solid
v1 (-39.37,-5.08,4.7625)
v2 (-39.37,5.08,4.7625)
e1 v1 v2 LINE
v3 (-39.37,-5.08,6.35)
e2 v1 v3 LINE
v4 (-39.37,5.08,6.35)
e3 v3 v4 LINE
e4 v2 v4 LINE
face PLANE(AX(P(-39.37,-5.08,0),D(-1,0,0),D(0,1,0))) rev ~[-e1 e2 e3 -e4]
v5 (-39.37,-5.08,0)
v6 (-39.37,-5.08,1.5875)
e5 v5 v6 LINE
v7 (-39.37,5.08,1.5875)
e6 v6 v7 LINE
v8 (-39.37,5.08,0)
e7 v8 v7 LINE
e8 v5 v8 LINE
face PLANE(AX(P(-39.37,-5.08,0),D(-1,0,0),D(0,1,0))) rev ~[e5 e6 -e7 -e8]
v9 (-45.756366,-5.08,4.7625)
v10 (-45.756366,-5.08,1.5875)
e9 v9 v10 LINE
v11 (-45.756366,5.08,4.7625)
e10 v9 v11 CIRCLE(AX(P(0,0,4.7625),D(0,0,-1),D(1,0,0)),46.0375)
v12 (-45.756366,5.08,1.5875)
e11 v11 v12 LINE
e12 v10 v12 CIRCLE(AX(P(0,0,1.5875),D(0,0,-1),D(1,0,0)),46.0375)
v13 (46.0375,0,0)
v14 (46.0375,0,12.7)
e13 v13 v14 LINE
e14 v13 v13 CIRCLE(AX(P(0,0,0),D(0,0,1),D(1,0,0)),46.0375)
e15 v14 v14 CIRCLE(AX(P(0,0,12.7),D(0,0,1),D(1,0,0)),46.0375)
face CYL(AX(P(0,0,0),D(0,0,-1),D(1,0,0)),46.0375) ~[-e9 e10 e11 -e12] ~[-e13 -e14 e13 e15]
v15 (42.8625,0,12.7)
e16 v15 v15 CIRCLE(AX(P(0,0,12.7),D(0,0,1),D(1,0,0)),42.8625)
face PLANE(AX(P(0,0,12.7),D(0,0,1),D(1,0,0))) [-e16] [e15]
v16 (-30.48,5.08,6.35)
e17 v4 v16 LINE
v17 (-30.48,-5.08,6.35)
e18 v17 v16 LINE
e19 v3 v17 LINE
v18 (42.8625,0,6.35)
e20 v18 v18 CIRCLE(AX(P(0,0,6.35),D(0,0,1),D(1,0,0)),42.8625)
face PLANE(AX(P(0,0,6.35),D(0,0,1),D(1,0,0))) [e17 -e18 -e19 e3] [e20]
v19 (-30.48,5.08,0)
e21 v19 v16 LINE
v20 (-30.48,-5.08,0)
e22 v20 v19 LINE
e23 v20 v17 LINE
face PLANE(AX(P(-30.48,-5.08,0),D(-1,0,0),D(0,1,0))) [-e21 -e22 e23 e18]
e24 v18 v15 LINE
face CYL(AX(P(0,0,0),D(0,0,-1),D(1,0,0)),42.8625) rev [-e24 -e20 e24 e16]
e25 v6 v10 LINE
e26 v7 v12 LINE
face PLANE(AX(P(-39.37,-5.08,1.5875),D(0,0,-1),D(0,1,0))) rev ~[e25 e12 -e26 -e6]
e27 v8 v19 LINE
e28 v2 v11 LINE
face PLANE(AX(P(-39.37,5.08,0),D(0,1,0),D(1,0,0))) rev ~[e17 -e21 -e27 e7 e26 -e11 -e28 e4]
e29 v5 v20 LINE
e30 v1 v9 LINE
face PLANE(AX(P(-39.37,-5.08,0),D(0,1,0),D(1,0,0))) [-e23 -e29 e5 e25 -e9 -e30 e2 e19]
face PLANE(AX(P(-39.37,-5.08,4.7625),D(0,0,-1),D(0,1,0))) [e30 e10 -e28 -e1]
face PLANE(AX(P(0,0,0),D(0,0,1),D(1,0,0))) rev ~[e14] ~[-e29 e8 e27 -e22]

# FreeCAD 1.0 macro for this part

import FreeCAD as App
import Part
import Sketcher
from FreeCAD import Vector
Q = App.Units.Quantity


def add_polygon(sketch, points):
    """Adds a closed chain of lines whose ends are joined by coincident constraints."""
    first, n = sketch.GeometryCount, len(points)
    for a, b in zip(points, points[1:] + points[:1]):
        sketch.addGeometry(Part.LineSegment(App.Vector(*a, 0), App.Vector(*b, 0)), False)
    for i in range(n):
        sketch.addConstraint(Sketcher.Constraint("Coincident", first + i, 2, first + (i + 1) % n, 1))

doc = App.newDocument("Part")
body = doc.addObject("PartDesign::Body", "Body")

# Sketch on XY plane
sketch1 = doc.addObject("Sketcher::SketchObject", "Sketch")
body.addObject(sketch1)
sketch1.AttachmentSupport = (doc.XY_Plane, [""])
sketch1.MapMode = "FlatFace"
sketch1.addGeometry([
    Part.Circle(Vector(0, 0, 0), Vector(0, 0, 1), 46),
    Part.Circle(Vector(0, 0, 0), Vector(0, 0, 1), 43),
], False)
sketch1.addConstraint([
    Sketcher.Constraint("Coincident", 0, 3, -1, 1),
    Sketcher.Constraint("Coincident", 1, 3, -1, 1),
    Sketcher.Constraint("Diameter", 0, Q("3.625 in")),
    Sketcher.Constraint("Diameter", 1, Q("3.375 in")),
])
pad1 = doc.addObject("PartDesign::Pad", "Pad")
body.addObject(pad1)
pad1.Profile = sketch1
pad1.Length = Q("0.5 in")

# Sketch on XY plane
sketch2 = doc.addObject("Sketcher::SketchObject", "Sketch001")
body.addObject(sketch2)
sketch2.AttachmentSupport = (doc.XY_Plane, [""])
sketch2.MapMode = "FlatFace"
sketch2.addGeometry(Part.Circle(Vector(0, 0, 0), Vector(0, 0, 1), 43), False)  # 0
add_polygon(sketch2, [(-30, -5), (-39, -5), (-39, 5), (-30, 5)])  # lines 1-4
sketch2.addConstraint([
    Sketcher.Constraint("Horizontal", 1),
    Sketcher.Constraint("Vertical", 2),
    Sketcher.Constraint("Horizontal", 3),
    Sketcher.Constraint("Vertical", 4),
    Sketcher.Constraint("Coincident", 0, 3, -1, 1),
    Sketcher.Constraint("Diameter", 0, Q("3.375 in")),
    Sketcher.Constraint("DistanceY", 2, 1, 2, 2, Q("0.4 in")),
    Sketcher.Constraint("DistanceX", 1, 2, 1, 1, Q("0.35 in")),
    Sketcher.Constraint("DistanceY", 1, 2, -1, 1, Q("0.2 in")),
    Sketcher.Constraint("DistanceX", 3, 2, -1, 1, Q("1.2 in")),
])
pad2 = doc.addObject("PartDesign::Pad", "Pad001")
body.addObject(pad2)
pad2.Profile = sketch2
pad2.Length = Q("0.25 in")

# Sketch on YZ plane
sketch3 = doc.addObject("Sketcher::SketchObject", "Sketch002")
body.addObject(sketch3)
sketch3.AttachmentSupport = (doc.YZ_Plane, [""])
sketch3.MapMode = "FlatFace"
sketch3.AttachmentOffset = App.Placement(Vector(0, 0, -1.55 * 25.4), App.Rotation())
add_polygon(sketch3, [(-5.1, 4.8), (-5.1, 1.6), (5.1, 1.6), (5.1, 4.8)])  # lines 0-3
sketch3.addConstraint([
    Sketcher.Constraint("Vertical", 0),
    Sketcher.Constraint("Horizontal", 1),
    Sketcher.Constraint("Vertical", 2),
    Sketcher.Constraint("Horizontal", 3),
    Sketcher.Constraint("DistanceX", 1, 1, 1, 2, Q("0.4 in")),
    Sketcher.Constraint("DistanceX", 0, 2, -1, 1, Q("0.2 in")),
    Sketcher.Constraint("DistanceY", 0, 2, 0, 1, Q("0.125 in")),
    Sketcher.Constraint("DistanceY", -1, 1, 0, 2, Q("0.0625 in")),
])
pocket1 = doc.addObject("PartDesign::Pocket", "Pocket")
body.addObject(pocket1)
pocket1.Profile = sketch3
pocket1.Type = "ThroughAll"

doc.recompute()
